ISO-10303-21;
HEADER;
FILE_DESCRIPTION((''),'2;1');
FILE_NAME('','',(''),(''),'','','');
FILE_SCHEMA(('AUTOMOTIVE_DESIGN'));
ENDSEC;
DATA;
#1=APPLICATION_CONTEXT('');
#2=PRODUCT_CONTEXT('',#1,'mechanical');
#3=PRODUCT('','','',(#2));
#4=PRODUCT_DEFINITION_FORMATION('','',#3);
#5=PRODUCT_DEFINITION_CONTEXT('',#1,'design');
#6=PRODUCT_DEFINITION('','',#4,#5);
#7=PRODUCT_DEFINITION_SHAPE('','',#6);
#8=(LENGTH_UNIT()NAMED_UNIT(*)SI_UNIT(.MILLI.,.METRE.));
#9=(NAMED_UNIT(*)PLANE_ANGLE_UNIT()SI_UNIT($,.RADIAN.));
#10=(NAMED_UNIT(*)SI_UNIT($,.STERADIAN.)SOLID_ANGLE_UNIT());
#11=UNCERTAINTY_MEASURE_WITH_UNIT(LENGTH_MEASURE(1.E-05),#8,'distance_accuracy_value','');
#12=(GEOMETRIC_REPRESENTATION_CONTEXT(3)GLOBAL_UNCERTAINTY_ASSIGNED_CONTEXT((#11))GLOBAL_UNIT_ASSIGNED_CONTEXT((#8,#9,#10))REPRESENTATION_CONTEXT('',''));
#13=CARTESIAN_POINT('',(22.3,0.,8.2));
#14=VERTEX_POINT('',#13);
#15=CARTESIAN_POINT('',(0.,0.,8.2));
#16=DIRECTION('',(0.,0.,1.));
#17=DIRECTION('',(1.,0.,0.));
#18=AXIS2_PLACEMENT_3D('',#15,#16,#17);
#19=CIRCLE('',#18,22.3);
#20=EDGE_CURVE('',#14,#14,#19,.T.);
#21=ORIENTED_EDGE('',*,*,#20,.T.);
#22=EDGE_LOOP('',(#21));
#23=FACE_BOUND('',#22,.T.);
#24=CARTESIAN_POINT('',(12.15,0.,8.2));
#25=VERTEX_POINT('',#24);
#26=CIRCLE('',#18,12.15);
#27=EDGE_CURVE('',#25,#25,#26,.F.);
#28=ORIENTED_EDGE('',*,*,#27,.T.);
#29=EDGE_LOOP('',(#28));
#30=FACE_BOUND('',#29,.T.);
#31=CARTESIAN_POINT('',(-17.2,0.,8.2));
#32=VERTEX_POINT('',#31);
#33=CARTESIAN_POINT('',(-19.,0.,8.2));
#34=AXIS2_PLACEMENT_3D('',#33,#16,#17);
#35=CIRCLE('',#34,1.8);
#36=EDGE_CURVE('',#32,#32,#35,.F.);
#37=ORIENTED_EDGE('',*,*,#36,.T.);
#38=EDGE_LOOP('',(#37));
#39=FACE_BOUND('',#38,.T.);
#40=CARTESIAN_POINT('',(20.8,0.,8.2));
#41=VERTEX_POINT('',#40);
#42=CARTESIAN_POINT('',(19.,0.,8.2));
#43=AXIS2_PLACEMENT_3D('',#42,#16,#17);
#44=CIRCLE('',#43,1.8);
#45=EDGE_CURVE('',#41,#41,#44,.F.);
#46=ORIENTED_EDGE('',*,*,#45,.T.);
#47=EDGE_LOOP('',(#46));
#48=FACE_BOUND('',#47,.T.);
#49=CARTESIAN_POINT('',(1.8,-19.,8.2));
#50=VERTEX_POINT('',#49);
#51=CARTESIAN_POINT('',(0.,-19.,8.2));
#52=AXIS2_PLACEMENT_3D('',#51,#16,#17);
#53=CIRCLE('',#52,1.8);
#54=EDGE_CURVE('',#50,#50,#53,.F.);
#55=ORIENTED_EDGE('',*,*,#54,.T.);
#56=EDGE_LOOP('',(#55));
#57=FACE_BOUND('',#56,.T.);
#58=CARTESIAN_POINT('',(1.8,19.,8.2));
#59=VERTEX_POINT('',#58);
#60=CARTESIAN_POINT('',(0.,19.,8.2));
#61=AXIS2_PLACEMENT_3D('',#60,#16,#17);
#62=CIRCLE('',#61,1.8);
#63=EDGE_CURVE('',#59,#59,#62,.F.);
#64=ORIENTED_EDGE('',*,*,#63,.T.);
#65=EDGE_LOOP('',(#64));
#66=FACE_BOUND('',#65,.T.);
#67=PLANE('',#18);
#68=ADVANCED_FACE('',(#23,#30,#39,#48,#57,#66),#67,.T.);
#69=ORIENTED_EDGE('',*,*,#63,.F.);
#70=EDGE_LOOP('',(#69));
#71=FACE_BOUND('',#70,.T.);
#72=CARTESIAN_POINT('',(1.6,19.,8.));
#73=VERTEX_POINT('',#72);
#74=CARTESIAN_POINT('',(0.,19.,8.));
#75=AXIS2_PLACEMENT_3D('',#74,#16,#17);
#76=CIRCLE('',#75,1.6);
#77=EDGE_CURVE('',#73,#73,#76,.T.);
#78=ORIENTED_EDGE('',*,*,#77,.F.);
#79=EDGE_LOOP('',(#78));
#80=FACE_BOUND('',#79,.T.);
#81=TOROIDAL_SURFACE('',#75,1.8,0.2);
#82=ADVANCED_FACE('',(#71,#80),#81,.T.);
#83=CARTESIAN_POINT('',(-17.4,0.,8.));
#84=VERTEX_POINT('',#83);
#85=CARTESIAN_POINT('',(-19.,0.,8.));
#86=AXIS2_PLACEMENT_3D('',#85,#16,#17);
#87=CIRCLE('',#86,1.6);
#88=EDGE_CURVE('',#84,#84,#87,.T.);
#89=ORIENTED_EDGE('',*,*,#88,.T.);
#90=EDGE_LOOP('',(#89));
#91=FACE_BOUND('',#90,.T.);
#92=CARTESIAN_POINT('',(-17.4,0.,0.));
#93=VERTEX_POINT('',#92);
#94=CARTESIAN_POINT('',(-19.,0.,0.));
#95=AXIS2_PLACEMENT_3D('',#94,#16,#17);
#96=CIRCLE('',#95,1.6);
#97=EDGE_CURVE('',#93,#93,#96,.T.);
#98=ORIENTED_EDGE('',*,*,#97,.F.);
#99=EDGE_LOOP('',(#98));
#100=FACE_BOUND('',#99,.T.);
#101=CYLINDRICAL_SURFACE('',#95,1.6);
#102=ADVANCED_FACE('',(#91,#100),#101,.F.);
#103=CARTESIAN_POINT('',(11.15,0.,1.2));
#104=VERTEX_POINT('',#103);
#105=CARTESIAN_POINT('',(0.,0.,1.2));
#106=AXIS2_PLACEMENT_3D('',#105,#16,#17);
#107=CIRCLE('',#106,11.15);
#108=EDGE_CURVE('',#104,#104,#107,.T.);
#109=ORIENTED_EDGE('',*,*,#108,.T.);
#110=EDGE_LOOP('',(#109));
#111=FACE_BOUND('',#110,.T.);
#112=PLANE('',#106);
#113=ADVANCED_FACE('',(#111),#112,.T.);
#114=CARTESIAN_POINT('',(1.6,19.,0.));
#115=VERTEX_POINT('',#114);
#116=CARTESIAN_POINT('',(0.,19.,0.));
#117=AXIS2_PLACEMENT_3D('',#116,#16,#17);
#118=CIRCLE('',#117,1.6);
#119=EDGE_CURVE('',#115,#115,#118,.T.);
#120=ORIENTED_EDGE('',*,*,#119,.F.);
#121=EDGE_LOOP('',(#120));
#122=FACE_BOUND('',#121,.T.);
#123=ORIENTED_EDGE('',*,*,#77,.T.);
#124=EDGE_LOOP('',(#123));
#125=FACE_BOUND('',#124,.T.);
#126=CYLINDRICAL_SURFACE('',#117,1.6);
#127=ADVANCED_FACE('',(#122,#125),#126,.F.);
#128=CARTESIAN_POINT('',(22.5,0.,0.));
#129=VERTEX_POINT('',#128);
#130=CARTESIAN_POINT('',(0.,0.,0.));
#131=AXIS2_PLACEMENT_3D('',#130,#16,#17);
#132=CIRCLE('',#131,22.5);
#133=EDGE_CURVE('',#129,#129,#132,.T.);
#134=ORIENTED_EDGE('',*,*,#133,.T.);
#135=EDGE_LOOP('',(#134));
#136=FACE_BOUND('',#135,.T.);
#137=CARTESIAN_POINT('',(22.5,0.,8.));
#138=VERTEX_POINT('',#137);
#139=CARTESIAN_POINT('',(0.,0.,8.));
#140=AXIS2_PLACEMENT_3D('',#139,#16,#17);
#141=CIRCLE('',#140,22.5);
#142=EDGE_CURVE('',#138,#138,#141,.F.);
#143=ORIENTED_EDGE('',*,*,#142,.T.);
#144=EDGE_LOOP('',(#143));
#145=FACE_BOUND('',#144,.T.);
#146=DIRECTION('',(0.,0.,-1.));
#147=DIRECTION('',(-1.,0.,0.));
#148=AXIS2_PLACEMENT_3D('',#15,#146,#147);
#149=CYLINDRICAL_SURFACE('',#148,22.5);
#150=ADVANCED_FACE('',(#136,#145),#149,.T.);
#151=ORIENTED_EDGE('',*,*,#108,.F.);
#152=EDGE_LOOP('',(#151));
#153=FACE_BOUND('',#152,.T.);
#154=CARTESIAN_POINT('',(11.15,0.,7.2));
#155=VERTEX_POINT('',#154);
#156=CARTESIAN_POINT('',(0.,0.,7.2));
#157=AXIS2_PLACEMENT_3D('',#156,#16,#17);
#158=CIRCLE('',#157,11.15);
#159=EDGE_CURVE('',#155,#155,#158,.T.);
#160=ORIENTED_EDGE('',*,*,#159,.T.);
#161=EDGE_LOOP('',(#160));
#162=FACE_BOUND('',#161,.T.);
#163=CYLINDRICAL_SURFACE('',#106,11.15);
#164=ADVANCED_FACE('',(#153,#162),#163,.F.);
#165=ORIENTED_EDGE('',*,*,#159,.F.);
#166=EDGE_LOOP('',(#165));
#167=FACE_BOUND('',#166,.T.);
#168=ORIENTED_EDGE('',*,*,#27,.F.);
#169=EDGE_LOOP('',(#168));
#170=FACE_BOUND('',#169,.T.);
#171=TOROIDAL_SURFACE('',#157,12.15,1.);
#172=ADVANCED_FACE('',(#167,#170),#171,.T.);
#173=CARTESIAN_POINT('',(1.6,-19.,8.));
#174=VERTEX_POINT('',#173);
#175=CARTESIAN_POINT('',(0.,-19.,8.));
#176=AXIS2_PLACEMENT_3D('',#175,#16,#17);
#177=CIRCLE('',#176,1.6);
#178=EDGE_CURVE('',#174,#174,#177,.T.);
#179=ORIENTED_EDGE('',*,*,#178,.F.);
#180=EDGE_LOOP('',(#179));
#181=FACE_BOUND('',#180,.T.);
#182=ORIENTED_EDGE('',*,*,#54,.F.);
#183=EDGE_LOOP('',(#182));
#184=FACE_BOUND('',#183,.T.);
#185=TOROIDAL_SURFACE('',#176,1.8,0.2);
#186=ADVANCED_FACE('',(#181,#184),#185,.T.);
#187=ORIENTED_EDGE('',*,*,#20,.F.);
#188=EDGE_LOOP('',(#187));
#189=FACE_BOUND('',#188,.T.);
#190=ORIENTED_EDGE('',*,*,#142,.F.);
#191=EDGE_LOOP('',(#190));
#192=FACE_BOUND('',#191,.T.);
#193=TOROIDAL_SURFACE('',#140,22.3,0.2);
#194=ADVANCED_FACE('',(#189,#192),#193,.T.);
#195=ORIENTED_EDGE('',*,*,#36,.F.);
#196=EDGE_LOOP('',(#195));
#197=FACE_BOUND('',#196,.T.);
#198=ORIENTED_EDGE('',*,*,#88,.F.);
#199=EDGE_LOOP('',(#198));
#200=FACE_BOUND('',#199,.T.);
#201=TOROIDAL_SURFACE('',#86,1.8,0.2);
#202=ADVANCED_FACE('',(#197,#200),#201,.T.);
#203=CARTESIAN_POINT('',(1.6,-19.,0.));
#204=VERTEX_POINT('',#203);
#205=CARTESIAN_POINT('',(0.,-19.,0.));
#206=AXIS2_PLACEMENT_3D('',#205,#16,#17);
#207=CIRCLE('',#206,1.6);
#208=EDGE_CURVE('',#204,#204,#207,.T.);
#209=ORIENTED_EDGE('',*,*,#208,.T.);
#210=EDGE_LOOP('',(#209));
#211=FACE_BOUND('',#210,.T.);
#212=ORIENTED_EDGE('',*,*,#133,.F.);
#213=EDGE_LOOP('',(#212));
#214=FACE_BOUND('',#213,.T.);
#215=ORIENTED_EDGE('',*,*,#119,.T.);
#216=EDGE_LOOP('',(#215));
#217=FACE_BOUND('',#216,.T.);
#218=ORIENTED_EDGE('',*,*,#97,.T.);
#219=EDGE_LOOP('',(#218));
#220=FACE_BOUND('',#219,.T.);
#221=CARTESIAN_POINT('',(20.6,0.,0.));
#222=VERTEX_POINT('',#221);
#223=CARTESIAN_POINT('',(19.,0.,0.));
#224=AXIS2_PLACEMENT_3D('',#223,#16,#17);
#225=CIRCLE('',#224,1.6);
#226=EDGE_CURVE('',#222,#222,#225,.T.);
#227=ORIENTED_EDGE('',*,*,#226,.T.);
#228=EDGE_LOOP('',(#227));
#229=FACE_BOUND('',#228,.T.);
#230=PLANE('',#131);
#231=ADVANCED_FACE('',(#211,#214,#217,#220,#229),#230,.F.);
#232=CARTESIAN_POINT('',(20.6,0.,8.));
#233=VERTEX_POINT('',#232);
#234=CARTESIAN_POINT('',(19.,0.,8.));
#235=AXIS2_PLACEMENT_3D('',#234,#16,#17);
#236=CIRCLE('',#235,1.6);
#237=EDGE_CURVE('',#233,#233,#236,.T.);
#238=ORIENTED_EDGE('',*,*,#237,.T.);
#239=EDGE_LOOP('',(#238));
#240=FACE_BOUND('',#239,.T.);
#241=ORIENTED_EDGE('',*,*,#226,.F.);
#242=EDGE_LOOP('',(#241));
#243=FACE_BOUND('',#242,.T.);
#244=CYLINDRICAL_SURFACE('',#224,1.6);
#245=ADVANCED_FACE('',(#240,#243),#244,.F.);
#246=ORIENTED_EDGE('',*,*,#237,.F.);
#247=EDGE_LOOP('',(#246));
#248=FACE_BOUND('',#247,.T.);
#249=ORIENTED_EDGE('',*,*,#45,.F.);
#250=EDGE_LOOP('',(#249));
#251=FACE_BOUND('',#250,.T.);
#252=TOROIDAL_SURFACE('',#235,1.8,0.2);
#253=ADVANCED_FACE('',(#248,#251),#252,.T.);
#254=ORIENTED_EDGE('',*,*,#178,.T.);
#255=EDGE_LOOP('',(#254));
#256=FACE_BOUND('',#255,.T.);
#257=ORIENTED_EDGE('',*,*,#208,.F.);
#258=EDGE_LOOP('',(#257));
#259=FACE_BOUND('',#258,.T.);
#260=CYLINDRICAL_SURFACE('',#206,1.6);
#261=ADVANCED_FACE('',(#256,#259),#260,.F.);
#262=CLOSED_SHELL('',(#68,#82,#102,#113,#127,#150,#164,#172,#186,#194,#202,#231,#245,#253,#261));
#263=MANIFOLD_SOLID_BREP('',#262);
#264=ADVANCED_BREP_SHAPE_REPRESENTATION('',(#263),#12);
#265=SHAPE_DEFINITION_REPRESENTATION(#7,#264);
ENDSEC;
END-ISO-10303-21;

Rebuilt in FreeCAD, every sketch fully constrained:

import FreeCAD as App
import Part
import Sketcher

V = App.Vector
Q = App.Units.Quantity


def edges_at(feature, points):
    """Names of the edges that pass closest to the given points."""
    edges = feature.Shape.Edges
    near = lambda p: min(range(len(edges)), key=lambda i: edges[i].distToShape(Part.Vertex(*p))[0])
    return sorted({f"Edge{near(p) + 1}" for p in points})

doc = App.newDocument("Part")
params = doc.addObject("Spreadsheet::Sheet", "Params")
for row, (alias, value) in enumerate([
    ("sketch1_diameter", "45 mm"),
    ("pad1_length", "8.2 mm"),
    ("sketch2_diameter", "22.3 mm"),
    ("pocket1_length", "7 mm"),
    ("sketch3_diameter", "3.2 mm"),
    ("fillet_radius", "1 mm"),
    ("fillet2_radius", "0.2 mm"),
], start=1):
    params.set(f"A{row}", alias)
    params.set(f"B{row}", "=" + value)
    params.setAlias(f"B{row}", alias)

body = doc.addObject("PartDesign::Body", "Body")

sketch1 = body.newObject("Sketcher::SketchObject", "Sketch")
sketch1.AttachmentSupport = (doc.getObject("XY_Plane"), [""])
sketch1.MapMode = "FlatFace"
sketch1.addGeometry(Part.Circle(V(0, 0, 0), V(0, 0, 1), 22), False)
sketch1.addConstraint(Sketcher.Constraint("Coincident", 0, 3, -1, 1))
sketch1.addConstraint(Sketcher.Constraint("Diameter", 0, Q("45 mm")))
sketch1.setExpression("Constraints[1]", "Params.sketch1_diameter")
pad1 = body.newObject("PartDesign::Pad", "Pad")
pad1.Profile = sketch1
pad1.setExpression("Length", "Params.pad1_length")

sketch2 = body.newObject("Sketcher::SketchObject", "Sketch001")
sketch2.AttachmentSupport = (doc.getObject("XY_Plane"), [""])
sketch2.MapMode = "FlatFace"
sketch2.AttachmentOffset = App.Placement(V(0, 0, 8.2), App.Rotation())
sketch2.addGeometry(Part.Circle(V(0, 0, 0), V(0, 0, 1), 11), False)
sketch2.addConstraint(Sketcher.Constraint("Coincident", 0, 3, -1, 1))
sketch2.addConstraint(Sketcher.Constraint("Diameter", 0, Q("22.3 mm")))
sketch2.setExpression("Constraints[1]", "Params.sketch2_diameter")
pocket1 = body.newObject("PartDesign::Pocket", "Pocket")
pocket1.Profile = sketch2
pocket1.setExpression("Length", "Params.pocket1_length")

sketch3 = body.newObject("Sketcher::SketchObject", "Sketch002")
sketch3.AttachmentSupport = (doc.getObject("XY_Plane"), [""])
sketch3.MapMode = "FlatFace"
sketch3.AttachmentOffset = App.Placement(V(0, 0, 8.2), App.Rotation())
sketch3.addGeometry(Part.Circle(V(-19, 0, 0), V(0, 0, 1), 1.6), False)
sketch3.addGeometry(Part.Circle(V(0, 19, 0), V(0, 0, 1), 1.6), False)
sketch3.addGeometry(Part.Circle(V(19, 0, 0), V(0, 0, 1), 1.6), False)
sketch3.addGeometry(Part.Circle(V(0, -19, 0), V(0, 0, 1), 1.6), False)
sketch3.addConstraint(Sketcher.Constraint("Equal", 0, 1))
sketch3.addConstraint(Sketcher.Constraint("Equal", 1, 2))
sketch3.addConstraint(Sketcher.Constraint("Equal", 2, 3))
sketch3.addConstraint(Sketcher.Constraint("Symmetric", 0, 3, 2, 3, -1, 1))
sketch3.addConstraint(Sketcher.Constraint("Symmetric", 1, 3, 3, 3, -1, 1))
sketch3.addConstraint(Sketcher.Constraint("PointOnObject", 0, 3, -1))
sketch3.addConstraint(Sketcher.Constraint("PointOnObject", 1, 3, -2))
sketch3.addConstraint(Sketcher.Constraint("Diameter", 0, Q("3.2 mm")))
sketch3.addConstraint(Sketcher.Constraint("DistanceX", 0, 3, -1, 1, Q("19 mm")))
sketch3.addConstraint(Sketcher.Constraint("DistanceY", -1, 1, 1, 3, Q("19 mm")))
sketch3.setExpression("Constraints[7]", "Params.sketch3_diameter")
pocket2 = body.newObject("PartDesign::Pocket", "Pocket001")
pocket2.Profile = sketch3
pocket2.Type = "ThroughAll"
doc.recompute()

fillet = body.newObject("PartDesign::Fillet", "Fillet")
fillet.Base = (pocket2, edges_at(pocket2, [(-11.15, 0, 8.2)]))
fillet.setExpression("Radius", "Params.fillet_radius")
doc.recompute()

fillet2 = body.newObject("PartDesign::Fillet", "Fillet001")
fillet2.Base = (fillet, edges_at(fillet, [
    (-20.6, 0, 8.2),
    (-1.6, 19, 8.2),
    (17.4, 0, 8.2),
    (-1.6, -19, 8.2),
    (-22.5, 0, 8.2),
]))
fillet2.setExpression("Radius", "Params.fillet2_radius")

doc.recompute()
